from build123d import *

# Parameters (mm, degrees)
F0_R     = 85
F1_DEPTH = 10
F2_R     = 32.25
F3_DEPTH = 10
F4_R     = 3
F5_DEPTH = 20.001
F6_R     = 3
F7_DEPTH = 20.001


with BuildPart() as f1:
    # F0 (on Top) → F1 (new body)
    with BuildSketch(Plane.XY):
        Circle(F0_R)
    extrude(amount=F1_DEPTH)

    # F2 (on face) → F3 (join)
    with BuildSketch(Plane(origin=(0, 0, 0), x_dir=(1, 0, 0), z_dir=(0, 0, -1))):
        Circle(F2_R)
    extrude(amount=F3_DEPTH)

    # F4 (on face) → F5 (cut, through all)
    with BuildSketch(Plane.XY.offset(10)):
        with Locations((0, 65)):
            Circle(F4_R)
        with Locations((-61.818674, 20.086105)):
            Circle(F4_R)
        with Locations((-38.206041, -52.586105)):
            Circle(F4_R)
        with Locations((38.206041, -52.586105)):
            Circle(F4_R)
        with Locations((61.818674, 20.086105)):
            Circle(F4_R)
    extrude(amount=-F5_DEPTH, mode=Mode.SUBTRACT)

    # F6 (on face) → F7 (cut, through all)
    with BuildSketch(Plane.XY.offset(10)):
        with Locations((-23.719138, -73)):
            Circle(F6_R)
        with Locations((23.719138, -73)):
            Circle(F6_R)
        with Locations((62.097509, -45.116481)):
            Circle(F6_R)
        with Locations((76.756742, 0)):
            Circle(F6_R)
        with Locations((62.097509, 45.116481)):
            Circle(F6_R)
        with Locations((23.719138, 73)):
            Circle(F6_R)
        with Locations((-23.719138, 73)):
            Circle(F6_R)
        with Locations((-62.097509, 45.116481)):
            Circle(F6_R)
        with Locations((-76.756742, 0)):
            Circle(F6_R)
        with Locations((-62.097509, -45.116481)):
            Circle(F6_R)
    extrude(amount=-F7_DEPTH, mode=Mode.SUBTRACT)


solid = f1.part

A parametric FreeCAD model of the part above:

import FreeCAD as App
import Part
import Sketcher

V = App.Vector

doc = App.newDocument("Part")
body = doc.addObject("PartDesign::Body", "Body")

sketch1 = body.newObject("Sketcher::SketchObject", "Sketch")
sketch1.AttachmentSupport = (doc.getObject("XY_Plane"), [""])
sketch1.MapMode = "FlatFace"
sketch1.addGeometry(Part.Circle(V(0, 0, 0), V(0, 0, 1), 85), False)
sketch1.addConstraint(Sketcher.Constraint("Coincident", 0, 3, -1, 1))
sketch1.addConstraint(Sketcher.Constraint("Diameter", 0, 170.0))
pad1 = body.newObject("PartDesign::Pad", "Pad")
pad1.Profile = sketch1
pad1.Length = 10

sketch2 = body.newObject("Sketcher::SketchObject", "Sketch001")
sketch2.AttachmentSupport = (doc.getObject("XY_Plane"), [""])
sketch2.MapMode = "FlatFace"
sketch2.addGeometry(Part.Circle(V(0, 0, 0), V(0, 0, 1), 32), False)
sketch2.addConstraint(Sketcher.Constraint("Coincident", 0, 3, -1, 1))
sketch2.addConstraint(Sketcher.Constraint("Diameter", 0, 64.5))
pad2 = body.newObject("PartDesign::Pad", "Pad001")
pad2.Profile = sketch2
pad2.Length = 10
pad2.Reversed = True

sketch3 = body.newObject("Sketcher::SketchObject", "Sketch002")
sketch3.AttachmentSupport = (doc.getObject("XY_Plane"), [""])
sketch3.MapMode = "FlatFace"
sketch3.AttachmentOffset = App.Placement(V(0, 0, 10), App.Rotation())
sketch3.addGeometry(Part.Circle(V(0, 65, 0), V(0, 0, 1), 3), False)
sketch3.addGeometry(Part.Circle(V(-61.8, 20.1, 0), V(0, 0, 1), 3), False)
sketch3.addGeometry(Part.Circle(V(-38.2, -52.6, 0), V(0, 0, 1), 3), False)
sketch3.addGeometry(Part.Circle(V(38.2, -52.6, 0), V(0, 0, 1), 3), False)
sketch3.addGeometry(Part.Circle(V(61.8, 20.1, 0), V(0, 0, 1), 3), False)
sketch3.addConstraint(Sketcher.Constraint("Equal", 0, 1))
sketch3.addConstraint(Sketcher.Constraint("Equal", 1, 2))
sketch3.addConstraint(Sketcher.Constraint("Equal", 2, 3))
sketch3.addConstraint(Sketcher.Constraint("Equal", 3, 4))
sketch3.addConstraint(Sketcher.Constraint("Symmetric", 2, 3, 3, 3, -2))
sketch3.addConstraint(Sketcher.Constraint("Symmetric", 1, 3, 4, 3, -2))
sketch3.addConstraint(Sketcher.Constraint("PointOnObject", 0, 3, -2))
sketch3.addConstraint(Sketcher.Constraint("Diameter", 0, 6.0))
sketch3.addConstraint(Sketcher.Constraint("DistanceY", -1, 1, 0, 3, 65.0))
sketch3.addConstraint(Sketcher.Constraint("DistanceX", 2, 3, -1, 1, 38.206041))
sketch3.addConstraint(Sketcher.Constraint("DistanceY", 2, 3, 1, 3, 72.67221))
sketch3.addConstraint(Sketcher.Constraint("DistanceX", 1, 3, 4, 3, 123.637348))
sketch3.addConstraint(Sketcher.Constraint("DistanceY", -1, 1, 1, 3, 20.086105))
pocket1 = body.newObject("PartDesign::Pocket", "Pocket")
pocket1.Profile = sketch3
pocket1.Type = "ThroughAll"

sketch4 = body.newObject("Sketcher::SketchObject", "Sketch003")
sketch4.AttachmentSupport = (doc.getObject("XY_Plane"), [""])
sketch4.MapMode = "FlatFace"
sketch4.AttachmentOffset = App.Placement(V(0, 0, 10), App.Rotation())
sketch4.addGeometry(Part.Circle(V(-23.7, -73, 0), V(0, 0, 1), 3), False)
sketch4.addGeometry(Part.Circle(V(23.7, -73, 0), V(0, 0, 1), 3), False)
sketch4.addGeometry(Part.Circle(V(62.1, -45.1, 0), V(0, 0, 1), 3), False)
sketch4.addGeometry(Part.Circle(V(76.8, 0, 0), V(0, 0, 1), 3), False)
sketch4.addGeometry(Part.Circle(V(62.1, 45.1, 0), V(0, 0, 1), 3), False)
sketch4.addGeometry(Part.Circle(V(23.7, 73, 0), V(0, 0, 1), 3), False)
sketch4.addGeometry(Part.Circle(V(-23.7, 73, 0), V(0, 0, 1), 3), False)
sketch4.addGeometry(Part.Circle(V(-62.1, 45.1, 0), V(0, 0, 1), 3), False)
sketch4.addGeometry(Part.Circle(V(-76.8, 0, 0), V(0, 0, 1), 3), False)
sketch4.addGeometry(Part.Circle(V(-62.1, -45.1, 0), V(0, 0, 1), 3), False)
sketch4.addConstraint(Sketcher.Constraint("Equal", 0, 1))
sketch4.addConstraint(Sketcher.Constraint("Equal", 1, 2))
sketch4.addConstraint(Sketcher.Constraint("Equal", 2, 3))
sketch4.addConstraint(Sketcher.Constraint("Equal", 3, 4))
sketch4.addConstraint(Sketcher.Constraint("Equal", 4, 5))
sketch4.addConstraint(Sketcher.Constraint("Equal", 5, 6))
sketch4.addConstraint(Sketcher.Constraint("Equal", 6, 7))
sketch4.addConstraint(Sketcher.Constraint("Equal", 7, 8))
sketch4.addConstraint(Sketcher.Constraint("Equal", 8, 9))
sketch4.addConstraint(Sketcher.Constraint("Symmetric", 0, 3, 5, 3, -1, 1))
sketch4.addConstraint(Sketcher.Constraint("Symmetric", 1, 3, 6, 3, -1, 1))
sketch4.addConstraint(Sketcher.Constraint("Symmetric", 2, 3, 7, 3, -1, 1))
sketch4.addConstraint(Sketcher.Constraint("Symmetric", 3, 3, 8, 3, -1, 1))
sketch4.addConstraint(Sketcher.Constraint("Symmetric", 4, 3, 9, 3, -1, 1))
sketch4.addConstraint(Sketcher.Constraint("Symmetric", 0, 3, 1, 3, -2))
sketch4.addConstraint(Sketcher.Constraint("Symmetric", 4, 3, 7, 3, -2))
sketch4.addConstraint(Sketcher.Constraint("PointOnObject", 3, 3, -1))
sketch4.addConstraint(Sketcher.Constraint("Diameter", 0, 6.0))
sketch4.addConstraint(Sketcher.Constraint("DistanceY", 0, 3, -1, 1, 73.0))
sketch4.addConstraint(Sketcher.Constraint("DistanceX", 0, 3, -1, 1, 23.719138))
sketch4.addConstraint(Sketcher.Constraint("DistanceX", -1, 1, 2, 3, 62.097509))
sketch4.addConstraint(Sketcher.Constraint("DistanceY", 2, 3, -1, 1, 45.116481))
sketch4.addConstraint(Sketcher.Constraint("DistanceX", 0, 3, 3, 3, 100.47588))
pocket2 = body.newObject("PartDesign::Pocket", "Pocket001")
pocket2.Profile = sketch4
pocket2.Type = "ThroughAll"

doc.recompute()
